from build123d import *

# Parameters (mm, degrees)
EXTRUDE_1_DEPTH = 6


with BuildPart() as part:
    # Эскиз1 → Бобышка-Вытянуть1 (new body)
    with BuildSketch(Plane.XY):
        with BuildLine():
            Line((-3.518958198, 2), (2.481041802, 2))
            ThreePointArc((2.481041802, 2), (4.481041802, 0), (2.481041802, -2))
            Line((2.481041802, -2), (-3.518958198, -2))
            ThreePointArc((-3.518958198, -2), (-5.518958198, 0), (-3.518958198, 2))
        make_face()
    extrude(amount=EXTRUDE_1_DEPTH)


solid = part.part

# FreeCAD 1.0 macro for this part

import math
import FreeCAD as App
import Part
import Sketcher
Q = App.Units.Quantity

doc = App.newDocument("Part")
params = doc.addObject("Spreadsheet::Sheet", "Params")
for row, (alias, value) in enumerate([
    ("sketch1_radius", "2 mm"),
    ("sketch1_width", "6 mm"),
    ("pad1_length", "6 mm"),
], start=1):
    params.set(f"A{row}", alias)
    params.set(f"B{row}", "=" + value)
    params.setAlias(f"B{row}", alias)

body = doc.addObject("PartDesign::Body", "Body")

# Sketch on XY plane
sketch1 = body.newObject("Sketcher::SketchObject", "Sketch")
sketch1.AttachmentSupport = (doc.getObject("XY_Plane"), [""])
sketch1.MapMode = "FlatFace"
sketch1.addGeometry([
    Part.LineSegment(App.Vector(2.5, 2, 0), App.Vector(-3.5, 2, 0)),
    Part.ArcOfCircle(Part.Circle(App.Vector(-3.5, 0, 0), App.Vector(0, 0, 1), 2), math.radians(90), math.radians(270)),
    Part.LineSegment(App.Vector(-3.5, -2, 0), App.Vector(2.5, -2, 0)),
    Part.ArcOfCircle(Part.Circle(App.Vector(2.5, 0, 0), App.Vector(0, 0, 1), 2), math.radians(-90), math.radians(90)),
], False)
sketch1.addConstraint([
    Sketcher.Constraint("Tangent", 0, 2, 1, 1),
    Sketcher.Constraint("Tangent", 1, 2, 2, 1),
    Sketcher.Constraint("Tangent", 2, 2, 3, 1),
    Sketcher.Constraint("Tangent", 3, 2, 0, 1),
    Sketcher.Constraint("Horizontal", 0),
    Sketcher.Constraint("Horizontal", 2),
    Sketcher.Constraint("PointOnObject", 1, 3, -1),
    Sketcher.Constraint("Radius", 1, Q("2 mm")),
    Sketcher.Constraint("DistanceX", 0, 2, 0, 1, Q("6 mm")),
    Sketcher.Constraint("DistanceX", 1, 3, -1, 1, Q("3.518958 mm")),
])
sketch1.setExpression("Constraints[7]", "Params.sketch1_radius")
sketch1.setExpression("Constraints[8]", "Params.sketch1_width")
pad1 = body.newObject("PartDesign::Pad", "Pad")
pad1.Profile = sketch1
pad1.setExpression("Length", "Params.pad1_length")

doc.recompute()
